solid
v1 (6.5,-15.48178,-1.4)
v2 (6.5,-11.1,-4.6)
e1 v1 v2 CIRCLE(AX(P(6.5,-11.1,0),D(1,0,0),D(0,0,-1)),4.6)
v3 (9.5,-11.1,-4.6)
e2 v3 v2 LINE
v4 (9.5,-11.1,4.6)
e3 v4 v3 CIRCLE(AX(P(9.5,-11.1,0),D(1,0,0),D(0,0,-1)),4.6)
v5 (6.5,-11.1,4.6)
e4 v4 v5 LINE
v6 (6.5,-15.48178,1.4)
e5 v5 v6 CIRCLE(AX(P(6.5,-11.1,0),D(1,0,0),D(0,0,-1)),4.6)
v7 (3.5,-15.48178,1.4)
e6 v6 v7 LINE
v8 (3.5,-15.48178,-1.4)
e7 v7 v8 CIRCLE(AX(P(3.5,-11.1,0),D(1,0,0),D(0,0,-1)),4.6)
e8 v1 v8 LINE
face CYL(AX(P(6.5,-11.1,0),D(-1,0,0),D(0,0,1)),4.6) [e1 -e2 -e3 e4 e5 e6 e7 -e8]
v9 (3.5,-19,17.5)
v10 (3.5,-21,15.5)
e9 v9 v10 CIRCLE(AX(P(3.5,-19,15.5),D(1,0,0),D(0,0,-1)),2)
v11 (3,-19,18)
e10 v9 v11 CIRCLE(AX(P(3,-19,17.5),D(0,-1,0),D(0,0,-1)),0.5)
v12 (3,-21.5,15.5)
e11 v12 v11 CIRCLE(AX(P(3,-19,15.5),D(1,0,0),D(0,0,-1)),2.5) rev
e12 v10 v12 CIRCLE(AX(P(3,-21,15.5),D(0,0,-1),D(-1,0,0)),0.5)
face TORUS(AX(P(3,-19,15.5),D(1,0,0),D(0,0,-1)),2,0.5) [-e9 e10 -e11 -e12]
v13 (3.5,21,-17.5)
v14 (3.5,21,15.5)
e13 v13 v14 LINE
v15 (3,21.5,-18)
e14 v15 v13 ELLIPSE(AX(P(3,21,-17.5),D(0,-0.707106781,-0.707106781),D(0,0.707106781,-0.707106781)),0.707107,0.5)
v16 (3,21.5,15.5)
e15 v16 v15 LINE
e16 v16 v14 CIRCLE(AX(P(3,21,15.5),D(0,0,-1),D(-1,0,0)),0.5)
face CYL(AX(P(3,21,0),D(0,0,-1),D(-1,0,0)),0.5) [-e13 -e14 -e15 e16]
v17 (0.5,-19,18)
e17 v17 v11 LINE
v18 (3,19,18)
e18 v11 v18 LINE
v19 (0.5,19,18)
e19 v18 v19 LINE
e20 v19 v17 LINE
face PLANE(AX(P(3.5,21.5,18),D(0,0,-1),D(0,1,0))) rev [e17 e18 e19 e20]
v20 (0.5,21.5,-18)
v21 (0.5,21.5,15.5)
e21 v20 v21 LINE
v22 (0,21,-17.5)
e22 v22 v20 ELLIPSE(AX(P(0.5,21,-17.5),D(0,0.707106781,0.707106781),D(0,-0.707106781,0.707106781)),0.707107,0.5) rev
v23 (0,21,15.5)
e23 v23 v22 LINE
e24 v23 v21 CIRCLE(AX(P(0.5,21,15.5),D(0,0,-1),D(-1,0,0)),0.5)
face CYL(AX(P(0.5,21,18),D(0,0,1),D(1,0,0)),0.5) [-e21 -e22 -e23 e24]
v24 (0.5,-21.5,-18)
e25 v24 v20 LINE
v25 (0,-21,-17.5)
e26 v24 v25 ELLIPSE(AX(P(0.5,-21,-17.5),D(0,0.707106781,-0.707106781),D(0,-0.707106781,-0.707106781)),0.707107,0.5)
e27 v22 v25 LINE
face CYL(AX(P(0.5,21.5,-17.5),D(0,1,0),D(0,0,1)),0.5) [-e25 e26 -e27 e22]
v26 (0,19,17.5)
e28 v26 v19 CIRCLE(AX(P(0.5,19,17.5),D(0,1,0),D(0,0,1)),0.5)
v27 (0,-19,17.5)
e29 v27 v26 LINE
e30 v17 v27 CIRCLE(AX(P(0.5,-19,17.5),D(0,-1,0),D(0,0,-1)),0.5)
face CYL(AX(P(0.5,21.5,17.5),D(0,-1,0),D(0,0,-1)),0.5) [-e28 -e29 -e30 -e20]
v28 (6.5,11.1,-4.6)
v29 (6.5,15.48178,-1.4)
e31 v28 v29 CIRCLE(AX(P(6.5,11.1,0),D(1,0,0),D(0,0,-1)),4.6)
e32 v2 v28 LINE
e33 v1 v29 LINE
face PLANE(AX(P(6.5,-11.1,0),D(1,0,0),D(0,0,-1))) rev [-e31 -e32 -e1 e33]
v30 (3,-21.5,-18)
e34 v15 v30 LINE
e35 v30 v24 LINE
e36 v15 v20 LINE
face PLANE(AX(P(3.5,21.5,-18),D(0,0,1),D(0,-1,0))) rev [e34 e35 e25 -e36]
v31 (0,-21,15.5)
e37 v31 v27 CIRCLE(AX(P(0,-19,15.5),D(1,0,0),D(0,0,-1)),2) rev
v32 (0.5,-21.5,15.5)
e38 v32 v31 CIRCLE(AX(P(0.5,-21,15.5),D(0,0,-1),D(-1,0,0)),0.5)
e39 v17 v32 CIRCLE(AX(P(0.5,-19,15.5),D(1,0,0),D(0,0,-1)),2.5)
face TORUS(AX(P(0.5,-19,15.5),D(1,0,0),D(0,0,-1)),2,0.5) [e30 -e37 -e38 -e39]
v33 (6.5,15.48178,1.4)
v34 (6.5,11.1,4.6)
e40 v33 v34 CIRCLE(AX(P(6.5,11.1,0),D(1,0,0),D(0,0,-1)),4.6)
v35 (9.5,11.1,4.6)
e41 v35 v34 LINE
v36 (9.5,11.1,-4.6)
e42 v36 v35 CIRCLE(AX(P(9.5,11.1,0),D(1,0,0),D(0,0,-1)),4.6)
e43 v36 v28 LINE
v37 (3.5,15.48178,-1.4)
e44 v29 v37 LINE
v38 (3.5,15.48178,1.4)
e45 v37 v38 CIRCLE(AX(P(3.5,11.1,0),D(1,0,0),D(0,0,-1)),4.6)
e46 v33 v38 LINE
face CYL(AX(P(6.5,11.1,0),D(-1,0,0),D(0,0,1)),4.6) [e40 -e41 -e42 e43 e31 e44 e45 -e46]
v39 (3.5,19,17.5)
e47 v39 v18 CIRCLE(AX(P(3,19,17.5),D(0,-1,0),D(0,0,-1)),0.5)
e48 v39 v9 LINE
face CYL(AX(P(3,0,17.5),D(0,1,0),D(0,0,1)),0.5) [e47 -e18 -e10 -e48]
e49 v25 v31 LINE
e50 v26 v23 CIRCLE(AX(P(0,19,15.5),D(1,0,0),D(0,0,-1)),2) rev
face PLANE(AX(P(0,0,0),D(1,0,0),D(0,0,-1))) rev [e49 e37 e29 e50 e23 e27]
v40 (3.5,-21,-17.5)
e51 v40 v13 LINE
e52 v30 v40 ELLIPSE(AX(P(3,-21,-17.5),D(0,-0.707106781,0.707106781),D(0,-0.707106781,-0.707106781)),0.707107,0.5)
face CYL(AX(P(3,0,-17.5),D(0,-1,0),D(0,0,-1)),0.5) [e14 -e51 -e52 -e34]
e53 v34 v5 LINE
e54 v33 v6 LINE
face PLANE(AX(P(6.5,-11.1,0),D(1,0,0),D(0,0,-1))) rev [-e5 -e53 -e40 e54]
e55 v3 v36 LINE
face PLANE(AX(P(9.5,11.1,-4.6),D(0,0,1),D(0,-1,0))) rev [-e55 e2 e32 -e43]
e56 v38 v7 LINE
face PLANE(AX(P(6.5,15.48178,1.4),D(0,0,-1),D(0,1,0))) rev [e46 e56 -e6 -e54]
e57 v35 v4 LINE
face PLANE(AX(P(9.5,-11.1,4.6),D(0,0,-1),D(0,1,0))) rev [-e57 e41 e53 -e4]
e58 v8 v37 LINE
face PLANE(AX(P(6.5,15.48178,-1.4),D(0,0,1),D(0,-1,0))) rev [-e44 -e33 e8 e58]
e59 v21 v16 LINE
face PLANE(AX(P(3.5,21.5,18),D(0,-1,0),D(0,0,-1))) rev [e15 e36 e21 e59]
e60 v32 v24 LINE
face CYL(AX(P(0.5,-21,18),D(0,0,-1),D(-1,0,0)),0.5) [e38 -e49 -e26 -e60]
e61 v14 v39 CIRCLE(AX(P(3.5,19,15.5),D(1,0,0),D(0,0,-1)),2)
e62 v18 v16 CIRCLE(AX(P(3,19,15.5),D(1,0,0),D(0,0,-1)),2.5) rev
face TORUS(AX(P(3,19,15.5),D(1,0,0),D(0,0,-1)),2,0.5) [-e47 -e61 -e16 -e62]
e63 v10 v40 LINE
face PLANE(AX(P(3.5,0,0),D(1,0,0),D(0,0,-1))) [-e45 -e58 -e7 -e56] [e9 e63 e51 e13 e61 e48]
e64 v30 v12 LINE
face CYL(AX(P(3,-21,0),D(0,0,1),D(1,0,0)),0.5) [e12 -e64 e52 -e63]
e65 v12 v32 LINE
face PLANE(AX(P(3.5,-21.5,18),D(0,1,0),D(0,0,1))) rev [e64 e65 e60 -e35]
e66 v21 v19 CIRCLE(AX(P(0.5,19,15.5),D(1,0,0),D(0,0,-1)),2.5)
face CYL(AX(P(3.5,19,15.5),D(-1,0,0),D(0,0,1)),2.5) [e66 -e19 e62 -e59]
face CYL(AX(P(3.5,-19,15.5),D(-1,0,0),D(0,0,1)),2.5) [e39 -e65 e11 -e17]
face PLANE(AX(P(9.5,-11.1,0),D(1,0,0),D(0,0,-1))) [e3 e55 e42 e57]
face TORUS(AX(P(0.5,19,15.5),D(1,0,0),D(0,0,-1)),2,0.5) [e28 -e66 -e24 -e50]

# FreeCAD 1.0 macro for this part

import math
import FreeCAD as App
import Part
import Sketcher


def edges_at(feature, points):
    """Names of the edges that pass closest to the given points."""
    edges = feature.Shape.Edges
    near = lambda p: min(range(len(edges)), key=lambda i: edges[i].distToShape(Part.Vertex(*p))[0])
    return sorted({f"Edge{near(p) + 1}" for p in points})

doc = App.newDocument("Part")
body = doc.addObject("PartDesign::Body", "Body")

sketch1 = body.newObject("Sketcher::SketchObject", "Sketch")
sketch1.AttachmentSupport = (doc.getObject("YZ_Plane"), [""])
sketch1.MapMode = "FlatFace"
sketch1.addGeometry(Part.LineSegment(App.Vector(22, 18, 0), App.Vector(-22, 18, 0)), False)
sketch1.addGeometry(Part.LineSegment(App.Vector(-22, 18, 0), App.Vector(-22, -18, 0)), False)
sketch1.addGeometry(Part.LineSegment(App.Vector(-22, -18, 0), App.Vector(22, -18, 0)), False)
sketch1.addGeometry(Part.LineSegment(App.Vector(22, -18, 0), App.Vector(22, 18, 0)), False)
sketch1.addConstraint(Sketcher.Constraint("Coincident", 0, 2, 1, 1))
sketch1.addConstraint(Sketcher.Constraint("Coincident", 1, 2, 2, 1))
sketch1.addConstraint(Sketcher.Constraint("Coincident", 2, 2, 3, 1))
sketch1.addConstraint(Sketcher.Constraint("Coincident", 3, 2, 0, 1))
sketch1.addConstraint(Sketcher.Constraint("Horizontal", 0))
sketch1.addConstraint(Sketcher.Constraint("Vertical", 1))
sketch1.addConstraint(Sketcher.Constraint("Horizontal", 2))
sketch1.addConstraint(Sketcher.Constraint("Vertical", 3))
sketch1.addConstraint(Sketcher.Constraint("Symmetric", 0, 2, 2, 2, -1, 1))
sketch1.addConstraint(Sketcher.Constraint("DistanceX", 0, 2, 0, 1, 43.0))
sketch1.addConstraint(Sketcher.Constraint("DistanceY", 1, 2, 1, 1, 36.0))
pad1 = body.newObject("PartDesign::Pad", "Pad")
pad1.Profile = sketch1
pad1.Length = 3.5

sketch2 = body.newObject("Sketcher::SketchObject", "Sketch001")
sketch2.AttachmentSupport = (doc.getObject("YZ_Plane"), [""])
sketch2.MapMode = "FlatFace"
sketch2.AttachmentOffset = App.Placement(App.Vector(0, 0, 3.5), App.Rotation())
sketch2.addGeometry(Part.LineSegment(App.Vector(15.5, 1.4, 0), App.Vector(-15.5, 1.4, 0)), False)
sketch2.addGeometry(Part.ArcOfCircle(Part.Circle(App.Vector(-11.1, 0, 0), App.Vector(0, 0, 1), 4.6), math.radians(162), math.radians(198)), False)
sketch2.addGeometry(Part.LineSegment(App.Vector(-15.5, -1.4, 0), App.Vector(15.5, -1.4, 0)), False)
sketch2.addGeometry(Part.ArcOfCircle(Part.Circle(App.Vector(11.1, 0, 0), App.Vector(0, 0, 1), 4.6), math.radians(-18), math.radians(18)), False)
sketch2.addConstraint(Sketcher.Constraint("Coincident", 0, 2, 1, 1))
sketch2.addConstraint(Sketcher.Constraint("Coincident", 1, 2, 2, 1))
sketch2.addConstraint(Sketcher.Constraint("Coincident", 2, 2, 3, 1))
sketch2.addConstraint(Sketcher.Constraint("Coincident", 3, 2, 0, 1))
sketch2.addConstraint(Sketcher.Constraint("Horizontal", 0))
sketch2.addConstraint(Sketcher.Constraint("Horizontal", 2))
sketch2.addConstraint(Sketcher.Constraint("Equal", 1, 3))
sketch2.addConstraint(Sketcher.Constraint("Symmetric", 1, 3, 3, 3, -1, 1))
sketch2.addConstraint(Sketcher.Constraint("Symmetric", 0, 2, 1, 2, -1))
sketch2.addConstraint(Sketcher.Constraint("Radius", 1, 4.6))
sketch2.addConstraint(Sketcher.Constraint("DistanceX", 1, 3, -1, 1, 11.1))
sketch2.addConstraint(Sketcher.Constraint("DistanceY", -1, 1, 0, 2, 1.4))
pad2 = body.newObject("PartDesign::Pad", "Pad001")
pad2.Profile = sketch2
pad2.Length = 3

sketch3 = body.newObject("Sketcher::SketchObject", "Sketch002")
sketch3.AttachmentSupport = (doc.getObject("YZ_Plane"), [""])
sketch3.MapMode = "FlatFace"
sketch3.AttachmentOffset = App.Placement(App.Vector(0, 0, 6.5), App.Rotation())
sketch3.addGeometry(Part.LineSegment(App.Vector(11.1, 4.6, 0), App.Vector(-11.1, 4.6, 0)), False)
sketch3.addGeometry(Part.ArcOfCircle(Part.Circle(App.Vector(-11.1, 0, 0), App.Vector(0, 0, 1), 4.6), math.radians(90), math.radians(270)), False)
sketch3.addGeometry(Part.LineSegment(App.Vector(-11.1, -4.6, 0), App.Vector(11.1, -4.6, 0)), False)
sketch3.addGeometry(Part.ArcOfCircle(Part.Circle(App.Vector(11.1, 0, 0), App.Vector(0, 0, 1), 4.6), math.radians(-90), math.radians(90)), False)
sketch3.addConstraint(Sketcher.Constraint("Tangent", 0, 2, 1, 1))
sketch3.addConstraint(Sketcher.Constraint("Tangent", 1, 2, 2, 1))
sketch3.addConstraint(Sketcher.Constraint("Tangent", 2, 2, 3, 1))
sketch3.addConstraint(Sketcher.Constraint("Tangent", 3, 2, 0, 1))
sketch3.addConstraint(Sketcher.Constraint("Horizontal", 0))
sketch3.addConstraint(Sketcher.Constraint("Horizontal", 2))
sketch3.addConstraint(Sketcher.Constraint("Symmetric", 1, 3, 3, 3, -1, 1))
sketch3.addConstraint(Sketcher.Constraint("Radius", 1, 4.6))
sketch3.addConstraint(Sketcher.Constraint("DistanceX", 0, 2, 0, 1, 22.2))
pad3 = body.newObject("PartDesign::Pad", "Pad002")
pad3.Profile = sketch3
pad3.Length = 3
doc.recompute()

fillet = body.newObject("PartDesign::Fillet", "Fillet")
fillet.Base = (pad3, edges_at(pad3, [(1.75, -21.5, 18), (1.75, 21.5, 18)]))
fillet.Radius = 2.5
doc.recompute()

fillet2 = body.newObject("PartDesign::Fillet", "Fillet001")
fillet2.Base = (fillet, edges_at(fillet, [
    (3.5, 0, -18),
    (0, -21.5, -1.25),
    (3.5, -21.5, -1.25),
    (0, 0, 18),
    (0, 20.768, 17.268),
    (0, -20.768, 17.268),
    (3.5, 0, 18),
    (3.5, 20.768, 17.268),
    (3.5, -20.768, 17.268),
    (0, 21.5, -1.25),
    (0, 0, -18),
    (3.5, 21.5, -1.25),
]))
fillet2.Radius = 0.5

doc.recompute()
